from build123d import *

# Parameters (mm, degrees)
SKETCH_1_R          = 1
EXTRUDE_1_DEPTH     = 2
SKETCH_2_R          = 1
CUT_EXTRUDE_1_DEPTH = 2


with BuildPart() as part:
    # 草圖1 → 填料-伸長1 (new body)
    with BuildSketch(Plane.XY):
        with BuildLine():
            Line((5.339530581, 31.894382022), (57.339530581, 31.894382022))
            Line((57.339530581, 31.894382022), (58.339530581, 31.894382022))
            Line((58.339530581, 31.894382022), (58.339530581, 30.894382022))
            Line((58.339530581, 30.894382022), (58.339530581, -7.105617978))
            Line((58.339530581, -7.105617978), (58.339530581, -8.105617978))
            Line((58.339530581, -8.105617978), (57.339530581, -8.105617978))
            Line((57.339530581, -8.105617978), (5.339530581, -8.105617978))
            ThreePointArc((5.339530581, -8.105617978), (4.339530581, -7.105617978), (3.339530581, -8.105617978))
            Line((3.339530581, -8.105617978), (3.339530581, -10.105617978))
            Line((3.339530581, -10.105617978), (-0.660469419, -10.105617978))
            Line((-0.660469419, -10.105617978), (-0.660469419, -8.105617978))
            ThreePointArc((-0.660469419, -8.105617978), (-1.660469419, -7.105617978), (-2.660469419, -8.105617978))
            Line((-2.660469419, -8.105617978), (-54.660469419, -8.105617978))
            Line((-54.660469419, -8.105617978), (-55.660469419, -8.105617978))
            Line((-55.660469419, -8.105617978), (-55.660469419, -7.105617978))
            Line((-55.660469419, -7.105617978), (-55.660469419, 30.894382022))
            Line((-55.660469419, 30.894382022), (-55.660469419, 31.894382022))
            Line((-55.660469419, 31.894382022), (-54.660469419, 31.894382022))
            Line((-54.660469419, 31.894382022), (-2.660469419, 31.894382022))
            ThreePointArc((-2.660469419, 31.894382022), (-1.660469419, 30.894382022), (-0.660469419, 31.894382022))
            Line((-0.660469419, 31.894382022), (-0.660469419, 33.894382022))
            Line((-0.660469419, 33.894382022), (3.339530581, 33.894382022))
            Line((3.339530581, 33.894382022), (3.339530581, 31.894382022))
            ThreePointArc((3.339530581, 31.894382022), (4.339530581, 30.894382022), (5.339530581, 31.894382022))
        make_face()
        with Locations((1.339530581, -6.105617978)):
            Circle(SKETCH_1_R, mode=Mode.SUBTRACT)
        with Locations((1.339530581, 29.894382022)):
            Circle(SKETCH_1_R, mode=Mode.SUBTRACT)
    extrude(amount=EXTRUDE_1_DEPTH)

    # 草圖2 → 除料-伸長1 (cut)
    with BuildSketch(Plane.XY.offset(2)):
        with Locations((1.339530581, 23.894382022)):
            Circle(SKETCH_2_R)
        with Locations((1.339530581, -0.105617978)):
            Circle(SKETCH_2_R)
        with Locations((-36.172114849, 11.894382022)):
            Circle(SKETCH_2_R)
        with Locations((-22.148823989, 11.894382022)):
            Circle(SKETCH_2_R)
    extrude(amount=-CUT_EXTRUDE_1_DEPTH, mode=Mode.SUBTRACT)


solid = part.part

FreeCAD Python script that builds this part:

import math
import FreeCAD as App
import Part
import Sketcher
from FreeCAD import Vector

doc = App.newDocument("Part")
body = doc.addObject("PartDesign::Body", "Body")

sketch1 = doc.addObject("Sketcher::SketchObject", "Sketch")
body.addObject(sketch1)
sketch1.AttachmentSupport = (doc.XY_Plane, [""])
sketch1.MapMode = "FlatFace"
sketch1.addGeometry(Part.LineSegment(Vector(58.3, 31.9, 0), Vector(5.3, 31.9, 0)), False)
sketch1.addGeometry(Part.ArcOfCircle(Part.Circle(Vector(4.3, 31.9, 0), Vector(0, 0, 1), 1), math.radians(180), math.radians(360)), False)
sketch1.addGeometry(Part.LineSegment(Vector(3.3, 31.9, 0), Vector(3.3, 33.9, 0)), False)
sketch1.addGeometry(Part.LineSegment(Vector(3.3, 33.9, 0), Vector(-0.7, 33.9, 0)), False)
sketch1.addGeometry(Part.LineSegment(Vector(-0.7, 33.9, 0), Vector(-0.7, 31.9, 0)), False)
sketch1.addGeometry(Part.ArcOfCircle(Part.Circle(Vector(-1.7, 31.9, 0), Vector(0, 0, 1), 1), math.radians(180), math.radians(360)), False)
sketch1.addGeometry(Part.LineSegment(Vector(-2.7, 31.9, 0), Vector(-55.7, 31.9, 0)), False)
sketch1.addGeometry(Part.LineSegment(Vector(-55.7, 31.9, 0), Vector(-55.7, -8.1, 0)), False)
sketch1.addGeometry(Part.LineSegment(Vector(-55.7, -8.1, 0), Vector(-2.7, -8.1, 0)), False)
sketch1.addGeometry(Part.ArcOfCircle(Part.Circle(Vector(-1.7, -8.1, 0), Vector(0, 0, 1), 1), math.radians(0), math.radians(180)), False)
sketch1.addGeometry(Part.LineSegment(Vector(-0.7, -8.1, 0), Vector(-0.7, -10.1, 0)), False)
sketch1.addGeometry(Part.LineSegment(Vector(-0.7, -10.1, 0), Vector(3.3, -10.1, 0)), False)
sketch1.addGeometry(Part.LineSegment(Vector(3.3, -10.1, 0), Vector(3.3, -8.1, 0)), False)
sketch1.addGeometry(Part.ArcOfCircle(Part.Circle(Vector(4.3, -8.1, 0), Vector(0, 0, 1), 1), math.radians(0), math.radians(180)), False)
sketch1.addGeometry(Part.LineSegment(Vector(5.3, -8.1, 0), Vector(58.3, -8.1, 0)), False)
sketch1.addGeometry(Part.LineSegment(Vector(58.3, -8.1, 0), Vector(58.3, 31.9, 0)), False)
sketch1.addGeometry(Part.Circle(Vector(1.3, -6.1, 0), Vector(0, 0, 1), 1), False)
sketch1.addGeometry(Part.Circle(Vector(1.3, 29.9, 0), Vector(0, 0, 1), 1), False)
sketch1.addConstraint(Sketcher.Constraint("Coincident", 0, 2, 1, 2))
sketch1.addConstraint(Sketcher.Constraint("Tangent", 1, 1, 2, 1))
sketch1.addConstraint(Sketcher.Constraint("Coincident", 2, 2, 3, 1))
sketch1.addConstraint(Sketcher.Constraint("Coincident", 3, 2, 4, 1))
sketch1.addConstraint(Sketcher.Constraint("Tangent", 4, 2, 5, 2))
sketch1.addConstraint(Sketcher.Constraint("Coincident", 5, 1, 6, 1))
sketch1.addConstraint(Sketcher.Constraint("Coincident", 6, 2, 7, 1))
sketch1.addConstraint(Sketcher.Constraint("Coincident", 7, 2, 8, 1))
sketch1.addConstraint(Sketcher.Constraint("Coincident", 8, 2, 9, 2))
sketch1.addConstraint(Sketcher.Constraint("Tangent", 9, 1, 10, 1))
sketch1.addConstraint(Sketcher.Constraint("Coincident", 10, 2, 11, 1))
sketch1.addConstraint(Sketcher.Constraint("Coincident", 11, 2, 12, 1))
sketch1.addConstraint(Sketcher.Constraint("Tangent", 12, 2, 13, 2))
sketch1.addConstraint(Sketcher.Constraint("Coincident", 13, 1, 14, 1))
sketch1.addConstraint(Sketcher.Constraint("Coincident", 14, 2, 15, 1))
sketch1.addConstraint(Sketcher.Constraint("Coincident", 15, 2, 0, 1))
sketch1.addConstraint(Sketcher.Constraint("Horizontal", 0))
sketch1.addConstraint(Sketcher.Constraint("Vertical", 2))
sketch1.addConstraint(Sketcher.Constraint("Horizontal", 3))
sketch1.addConstraint(Sketcher.Constraint("Vertical", 4))
sketch1.addConstraint(Sketcher.Constraint("Horizontal", 6))
sketch1.addConstraint(Sketcher.Constraint("Vertical", 7))
sketch1.addConstraint(Sketcher.Constraint("Horizontal", 8))
sketch1.addConstraint(Sketcher.Constraint("Vertical", 10))
sketch1.addConstraint(Sketcher.Constraint("Horizontal", 11))
sketch1.addConstraint(Sketcher.Constraint("Vertical", 12))
sketch1.addConstraint(Sketcher.Constraint("Horizontal", 14))
sketch1.addConstraint(Sketcher.Constraint("Vertical", 15))
sketch1.addConstraint(Sketcher.Constraint("Equal", 1, 5))
sketch1.addConstraint(Sketcher.Constraint("Equal", 5, 9))
sketch1.addConstraint(Sketcher.Constraint("Equal", 9, 13))
sketch1.addConstraint(Sketcher.Constraint("Equal", 13, 16))
sketch1.addConstraint(Sketcher.Constraint("Equal", 16, 17))
sketch1.addConstraint(Sketcher.Constraint("Horizontal", 1, 3, 5, 3))
sketch1.addConstraint(Sketcher.Constraint("Horizontal", 9, 3, 13, 3))
sketch1.addConstraint(Sketcher.Constraint("Horizontal", 5, 3, 0, 2))
sketch1.addConstraint(Sketcher.Constraint("Horizontal", 4, 2, 5, 1))
sketch1.addConstraint(Sketcher.Constraint("Horizontal", 13, 3, 7, 2))
sketch1.addConstraint(Sketcher.Constraint("Horizontal", 12, 2, 13, 1))
sketch1.addConstraint(Sketcher.Constraint("Vertical", 5, 3, 9, 3))
sketch1.addConstraint(Sketcher.Constraint("Vertical", 1, 3, 13, 3))
sketch1.addConstraint(Sketcher.Constraint("Vertical", 16, 3, 17, 3))
sketch1.addConstraint(Sketcher.Constraint("Equal", 0, 6))
sketch1.addConstraint(Sketcher.Constraint("Equal", 4, 10))
sketch1.addConstraint(Sketcher.Constraint("Diameter", 16, 2.0))
sketch1.addConstraint(Sketcher.Constraint("DistanceX", 0, 2, 0, 1, 53.0))
sketch1.addConstraint(Sketcher.Constraint("DistanceX", 3, 2, 3, 1, 4.0))
sketch1.addConstraint(Sketcher.Constraint("DistanceY", 2, 1, 2, 2, 2.0))
sketch1.addConstraint(Sketcher.Constraint("DistanceY", 7, 2, 7, 1, 40.0))
sketch1.addConstraint(Sketcher.Constraint("DistanceX", 9, 3, 16, 3, 3.0))
sketch1.addConstraint(Sketcher.Constraint("DistanceY", 9, 3, 16, 3, 2.0))
sketch1.addConstraint(Sketcher.Constraint("DistanceY", 17, 3, 1, 3, 2.0))
sketch1.addConstraint(Sketcher.Constraint("DistanceX", -1, 1, 1, 3, 4.339531))
sketch1.addConstraint(Sketcher.Constraint("DistanceY", -1, 1, 1, 3, 31.894382))
pad1 = doc.addObject("PartDesign::Pad", "Pad")
body.addObject(pad1)
pad1.Profile = sketch1
pad1.Length = 2

sketch2 = doc.addObject("Sketcher::SketchObject", "Sketch001")
body.addObject(sketch2)
sketch2.AttachmentSupport = (doc.XY_Plane, [""])
sketch2.MapMode = "FlatFace"
sketch2.AttachmentOffset = App.Placement(Vector(0, 0, 2), App.Rotation())
sketch2.addGeometry(Part.Circle(Vector(1.3, 23.9, 0), Vector(0, 0, 1), 1), False)
sketch2.addGeometry(Part.Circle(Vector(1.3, -0.1, 0), Vector(0, 0, 1), 1), False)
sketch2.addGeometry(Part.Circle(Vector(-36.2, 11.9, 0), Vector(0, 0, 1), 1), False)
sketch2.addGeometry(Part.Circle(Vector(-22.1, 11.9, 0), Vector(0, 0, 1), 1), False)
sketch2.addConstraint(Sketcher.Constraint("Equal", 0, 1))
sketch2.addConstraint(Sketcher.Constraint("Equal", 1, 2))
sketch2.addConstraint(Sketcher.Constraint("Equal", 2, 3))
sketch2.addConstraint(Sketcher.Constraint("Horizontal", 2, 3, 3, 3))
sketch2.addConstraint(Sketcher.Constraint("Vertical", 0, 3, 1, 3))
sketch2.addConstraint(Sketcher.Constraint("Diameter", 0, 2.0))
sketch2.addConstraint(Sketcher.Constraint("DistanceY", 1, 3, 0, 3, 24.0))
sketch2.addConstraint(Sketcher.Constraint("DistanceY", 2, 3, 0, 3, 12.0))
sketch2.addConstraint(Sketcher.Constraint("DistanceX", -1, 1, 0, 3, 1.339531))
sketch2.addConstraint(Sketcher.Constraint("DistanceX", 2, 3, 3, 3, 14.023291))
sketch2.addConstraint(Sketcher.Constraint("DistanceY", -1, 1, 0, 3, 23.894382))
sketch2.addConstraint(Sketcher.Constraint("DistanceX", 2, 3, -1, 1, 36.172115))
pocket1 = doc.addObject("PartDesign::Pocket", "Pocket")
body.addObject(pocket1)
pocket1.Profile = sketch2
pocket1.Length = 2

doc.recompute()
